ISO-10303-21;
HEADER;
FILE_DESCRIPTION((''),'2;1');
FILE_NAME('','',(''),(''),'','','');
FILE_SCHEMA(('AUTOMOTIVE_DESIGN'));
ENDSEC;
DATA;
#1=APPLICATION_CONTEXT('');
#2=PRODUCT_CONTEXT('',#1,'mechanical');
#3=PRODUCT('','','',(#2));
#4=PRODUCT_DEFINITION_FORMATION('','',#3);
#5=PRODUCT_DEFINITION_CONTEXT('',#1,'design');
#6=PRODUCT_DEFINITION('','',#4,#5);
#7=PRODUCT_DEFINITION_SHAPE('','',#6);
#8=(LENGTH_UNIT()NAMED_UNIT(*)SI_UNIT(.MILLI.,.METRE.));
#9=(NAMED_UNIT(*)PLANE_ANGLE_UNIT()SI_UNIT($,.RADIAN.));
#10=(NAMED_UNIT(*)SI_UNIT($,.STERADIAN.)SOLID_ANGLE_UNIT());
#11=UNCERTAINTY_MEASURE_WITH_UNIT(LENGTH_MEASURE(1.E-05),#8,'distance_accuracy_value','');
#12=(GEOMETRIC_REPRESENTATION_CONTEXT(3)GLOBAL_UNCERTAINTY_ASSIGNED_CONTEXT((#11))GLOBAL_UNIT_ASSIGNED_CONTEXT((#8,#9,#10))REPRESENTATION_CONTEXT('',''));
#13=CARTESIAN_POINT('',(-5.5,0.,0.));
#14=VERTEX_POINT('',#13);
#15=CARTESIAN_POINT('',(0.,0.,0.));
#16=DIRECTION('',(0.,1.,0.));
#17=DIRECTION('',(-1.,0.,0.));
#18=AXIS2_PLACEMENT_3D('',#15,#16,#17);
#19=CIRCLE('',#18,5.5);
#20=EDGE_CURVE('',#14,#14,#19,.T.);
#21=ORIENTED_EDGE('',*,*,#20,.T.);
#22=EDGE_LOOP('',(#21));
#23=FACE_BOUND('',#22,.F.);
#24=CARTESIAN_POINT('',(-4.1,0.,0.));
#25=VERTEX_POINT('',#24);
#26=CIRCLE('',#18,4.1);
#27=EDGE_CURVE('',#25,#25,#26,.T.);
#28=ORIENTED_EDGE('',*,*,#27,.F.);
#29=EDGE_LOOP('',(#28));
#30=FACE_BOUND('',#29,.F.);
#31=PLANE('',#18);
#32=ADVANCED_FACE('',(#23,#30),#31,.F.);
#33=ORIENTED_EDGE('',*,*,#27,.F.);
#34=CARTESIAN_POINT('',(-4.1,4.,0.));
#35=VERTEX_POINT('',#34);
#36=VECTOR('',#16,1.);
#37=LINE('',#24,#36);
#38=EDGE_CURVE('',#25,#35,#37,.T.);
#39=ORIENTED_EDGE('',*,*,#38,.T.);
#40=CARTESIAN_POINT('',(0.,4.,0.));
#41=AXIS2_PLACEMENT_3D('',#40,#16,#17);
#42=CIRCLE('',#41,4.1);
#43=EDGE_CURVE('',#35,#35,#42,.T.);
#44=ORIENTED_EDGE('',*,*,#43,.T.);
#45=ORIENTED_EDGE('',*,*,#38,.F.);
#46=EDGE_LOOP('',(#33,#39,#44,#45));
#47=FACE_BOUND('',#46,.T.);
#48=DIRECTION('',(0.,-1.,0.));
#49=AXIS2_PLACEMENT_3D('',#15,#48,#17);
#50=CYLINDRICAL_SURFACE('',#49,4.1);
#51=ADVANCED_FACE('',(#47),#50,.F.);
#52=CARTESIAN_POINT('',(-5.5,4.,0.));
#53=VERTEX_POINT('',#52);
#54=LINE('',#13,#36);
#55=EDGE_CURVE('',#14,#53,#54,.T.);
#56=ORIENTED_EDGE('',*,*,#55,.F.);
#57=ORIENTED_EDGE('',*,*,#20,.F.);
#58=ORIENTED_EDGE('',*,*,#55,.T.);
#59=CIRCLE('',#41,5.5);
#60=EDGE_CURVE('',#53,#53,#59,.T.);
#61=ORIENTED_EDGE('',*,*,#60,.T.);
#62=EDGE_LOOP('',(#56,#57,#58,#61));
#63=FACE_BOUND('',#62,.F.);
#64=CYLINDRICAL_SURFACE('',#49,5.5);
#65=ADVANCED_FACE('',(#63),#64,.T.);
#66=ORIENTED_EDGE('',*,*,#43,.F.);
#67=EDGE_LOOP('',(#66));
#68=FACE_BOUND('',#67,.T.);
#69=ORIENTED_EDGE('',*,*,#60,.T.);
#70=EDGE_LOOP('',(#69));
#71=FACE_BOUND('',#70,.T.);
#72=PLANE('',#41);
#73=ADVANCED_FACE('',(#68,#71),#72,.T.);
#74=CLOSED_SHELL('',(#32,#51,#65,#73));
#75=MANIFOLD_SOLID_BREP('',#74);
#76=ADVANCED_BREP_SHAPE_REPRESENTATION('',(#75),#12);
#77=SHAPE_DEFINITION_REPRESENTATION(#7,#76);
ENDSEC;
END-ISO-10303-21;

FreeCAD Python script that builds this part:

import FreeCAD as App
import Part
import Sketcher

V = App.Vector

doc = App.newDocument("Part")
body = doc.addObject("PartDesign::Body", "Body")

# Sketch on XZ plane
sketch1 = body.newObject("Sketcher::SketchObject", "Sketch")
sketch1.AttachmentSupport = (doc.getObject("XZ_Plane"), [""])
sketch1.MapMode = "FlatFace"
sketch1.addGeometry([
    Part.Circle(V(0, 0, 0), V(0, 0, 1), 5.5),
    Part.Circle(V(0, 0, 0), V(0, 0, 1), 4.1),
], False)
sketch1.addConstraint([
    Sketcher.Constraint("Coincident", 0, 3, -1, 1),
    Sketcher.Constraint("Coincident", 1, 3, -1, 1),
    Sketcher.Constraint("Diameter", 0, 11.0),
    Sketcher.Constraint("Diameter", 1, 8.2),
])
pad1 = body.newObject("PartDesign::Pad", "Pad")
pad1.Profile = sketch1
pad1.Length = 4
pad1.Reversed = True

doc.recompute()
